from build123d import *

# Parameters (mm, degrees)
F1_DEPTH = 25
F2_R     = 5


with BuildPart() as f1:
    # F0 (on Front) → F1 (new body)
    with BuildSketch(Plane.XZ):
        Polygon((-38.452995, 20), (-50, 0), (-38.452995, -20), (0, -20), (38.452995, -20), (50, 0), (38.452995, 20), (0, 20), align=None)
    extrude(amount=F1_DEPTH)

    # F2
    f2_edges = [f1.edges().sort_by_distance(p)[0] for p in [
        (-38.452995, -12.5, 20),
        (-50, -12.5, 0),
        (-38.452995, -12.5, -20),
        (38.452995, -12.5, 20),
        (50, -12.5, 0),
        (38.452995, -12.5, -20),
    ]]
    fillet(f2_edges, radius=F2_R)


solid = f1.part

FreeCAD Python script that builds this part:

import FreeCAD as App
import Part
import Sketcher
from FreeCAD import Vector
Q = App.Units.Quantity


def edges_at(feature, points):
    """Names of the edges that pass closest to the given points."""
    edges = feature.Shape.Edges
    near = lambda p: min(range(len(edges)), key=lambda i: edges[i].distToShape(Part.Vertex(*p))[0])
    return sorted({f"Edge{near(p) + 1}" for p in points})

doc = App.newDocument("Part")
body = doc.addObject("PartDesign::Body", "Body")

# Sketch on XZ plane
sketch1 = doc.addObject("Sketcher::SketchObject", "Sketch")
body.addObject(sketch1)
sketch1.AttachmentSupport = (doc.XZ_Plane, [""])
sketch1.MapMode = "FlatFace"
sketch1.addGeometry([
    Part.LineSegment(Vector(-38.452995, 20, 0), Vector(-50, 0, 0)),  # 0
    Part.LineSegment(Vector(-50, 0, 0), Vector(-38.452995, -20, 0)),  # 1
    Part.LineSegment(Vector(-38.452995, -20, 0), Vector(38.452995, -20, 0)),  # 2
    Part.LineSegment(Vector(38.452995, -20, 0), Vector(50, 0, 0)),  # 3
    Part.LineSegment(Vector(50, 0, 0), Vector(38.452995, 20, 0)),  # 4
    Part.LineSegment(Vector(38.452995, 20, 0), Vector(-38.452995, 20, 0)),  # 5
], False)
sketch1.addConstraint([
    Sketcher.Constraint("Coincident", 0, 2, 1, 1),
    Sketcher.Constraint("Coincident", 1, 2, 2, 1),
    Sketcher.Constraint("Coincident", 2, 2, 3, 1),
    Sketcher.Constraint("Coincident", 3, 2, 4, 1),
    Sketcher.Constraint("Coincident", 4, 2, 5, 1),
    Sketcher.Constraint("Coincident", 5, 2, 0, 1),
    Sketcher.Constraint("Horizontal", 2),
    Sketcher.Constraint("Horizontal", 5),
    Sketcher.Constraint("Symmetric", 0, 2, 3, 2, -1, 1),
    Sketcher.Constraint("Symmetric", 1, 2, 4, 2, -1, 1),
    Sketcher.Constraint("PointOnObject", 0, 2, -1),
    Sketcher.Constraint("Parallel", 0, 3),
    Sketcher.Constraint("Vertical", 2, 2, 4, 2),
    Sketcher.Constraint("Angle", 0, Q("-119.999999 deg")),
    Sketcher.Constraint("DistanceX", 0, 2, -1, 1, Q("50 mm")),
    Sketcher.Constraint("DistanceY", 1, 2, -1, 1, Q("20 mm")),
])
pad1 = doc.addObject("PartDesign::Pad", "Pad")
body.addObject(pad1)
pad1.Profile = sketch1
pad1.Length = 25
doc.recompute()

fillet = doc.addObject("PartDesign::Fillet", "Fillet")
body.addObject(fillet)
fillet.Base = (pad1, edges_at(pad1, [
    (-38.453, -12.5, 20),
    (-50, -12.5, 0),
    (-38.453, -12.5, -20),
    (38.453, -12.5, 20),
    (50, -12.5, 0),
    (38.453, -12.5, -20),
]))
fillet.Radius = 5

doc.recompute()
